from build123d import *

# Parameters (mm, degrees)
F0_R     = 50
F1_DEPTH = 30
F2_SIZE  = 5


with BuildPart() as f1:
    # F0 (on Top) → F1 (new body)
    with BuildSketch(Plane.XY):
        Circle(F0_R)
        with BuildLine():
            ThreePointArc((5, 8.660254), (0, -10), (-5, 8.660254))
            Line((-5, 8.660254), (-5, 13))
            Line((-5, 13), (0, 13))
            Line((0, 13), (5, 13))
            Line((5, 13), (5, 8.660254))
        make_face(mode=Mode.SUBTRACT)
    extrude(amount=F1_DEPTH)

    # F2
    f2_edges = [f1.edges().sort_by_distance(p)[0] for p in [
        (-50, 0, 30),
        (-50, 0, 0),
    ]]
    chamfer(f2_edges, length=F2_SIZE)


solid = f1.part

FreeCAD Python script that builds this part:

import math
import FreeCAD as App
import Part
import Sketcher
from FreeCAD import Vector
Q = App.Units.Quantity


def edges_at(feature, points):
    """Names of the edges that pass closest to the given points."""
    edges = feature.Shape.Edges
    near = lambda p: min(range(len(edges)), key=lambda i: edges[i].distToShape(Part.Vertex(*p))[0])
    return sorted({f"Edge{near(p) + 1}" for p in points})

doc = App.newDocument("Part")
body = doc.addObject("PartDesign::Body", "Body")

# Sketch on XY plane
sketch1 = body.newObject("Sketcher::SketchObject", "Sketch")
sketch1.AttachmentSupport = (doc.getObject("XY_Plane"), [""])
sketch1.MapMode = "FlatFace"
sketch1.addGeometry([
    Part.Circle(Vector(0, 0, 0), Vector(0, 0, 1), 50),  # 0
    Part.LineSegment(Vector(5, 13, 0), Vector(5, 8.7, 0)),  # 1
    Part.ArcOfCircle(Part.Circle(Vector(0, 0, 0), Vector(0, 0, 1), 10), math.radians(120), math.radians(420)),  # 2
    Part.LineSegment(Vector(-5, 8.7, 0), Vector(-5, 13, 0)),  # 3
    Part.LineSegment(Vector(-5, 13, 0), Vector(5, 13, 0)),  # 4
], False)
sketch1.addConstraint([
    Sketcher.Constraint("Coincident", 1, 2, 2, 2),
    Sketcher.Constraint("Coincident", 2, 1, 3, 1),
    Sketcher.Constraint("Coincident", 3, 2, 4, 1),
    Sketcher.Constraint("Coincident", 4, 2, 1, 1),
    Sketcher.Constraint("Vertical", 1),
    Sketcher.Constraint("Vertical", 3),
    Sketcher.Constraint("Horizontal", 4),
    Sketcher.Constraint("Coincident", 0, 3, -1, 1),
    Sketcher.Constraint("Coincident", 2, 3, -1, 1),
    Sketcher.Constraint("Horizontal", 1, 2, 2, 1),
    Sketcher.Constraint("Diameter", 0, Q("100 mm")),
    Sketcher.Constraint("Radius", 2, Q("10 mm")),
    Sketcher.Constraint("DistanceX", 4, 1, 4, 2, Q("10 mm")),
    Sketcher.Constraint("DistanceY", -1, 1, 3, 2, Q("13 mm")),
])
pad1 = body.newObject("PartDesign::Pad", "Pad")
pad1.Profile = sketch1
pad1.Length = 30
doc.recompute()

chamfer = body.newObject("PartDesign::Chamfer", "Chamfer")
chamfer.Base = (pad1, edges_at(pad1, [(-50, 0, 30), (-50, 0, 0)]))
chamfer.Size = 5

doc.recompute()
